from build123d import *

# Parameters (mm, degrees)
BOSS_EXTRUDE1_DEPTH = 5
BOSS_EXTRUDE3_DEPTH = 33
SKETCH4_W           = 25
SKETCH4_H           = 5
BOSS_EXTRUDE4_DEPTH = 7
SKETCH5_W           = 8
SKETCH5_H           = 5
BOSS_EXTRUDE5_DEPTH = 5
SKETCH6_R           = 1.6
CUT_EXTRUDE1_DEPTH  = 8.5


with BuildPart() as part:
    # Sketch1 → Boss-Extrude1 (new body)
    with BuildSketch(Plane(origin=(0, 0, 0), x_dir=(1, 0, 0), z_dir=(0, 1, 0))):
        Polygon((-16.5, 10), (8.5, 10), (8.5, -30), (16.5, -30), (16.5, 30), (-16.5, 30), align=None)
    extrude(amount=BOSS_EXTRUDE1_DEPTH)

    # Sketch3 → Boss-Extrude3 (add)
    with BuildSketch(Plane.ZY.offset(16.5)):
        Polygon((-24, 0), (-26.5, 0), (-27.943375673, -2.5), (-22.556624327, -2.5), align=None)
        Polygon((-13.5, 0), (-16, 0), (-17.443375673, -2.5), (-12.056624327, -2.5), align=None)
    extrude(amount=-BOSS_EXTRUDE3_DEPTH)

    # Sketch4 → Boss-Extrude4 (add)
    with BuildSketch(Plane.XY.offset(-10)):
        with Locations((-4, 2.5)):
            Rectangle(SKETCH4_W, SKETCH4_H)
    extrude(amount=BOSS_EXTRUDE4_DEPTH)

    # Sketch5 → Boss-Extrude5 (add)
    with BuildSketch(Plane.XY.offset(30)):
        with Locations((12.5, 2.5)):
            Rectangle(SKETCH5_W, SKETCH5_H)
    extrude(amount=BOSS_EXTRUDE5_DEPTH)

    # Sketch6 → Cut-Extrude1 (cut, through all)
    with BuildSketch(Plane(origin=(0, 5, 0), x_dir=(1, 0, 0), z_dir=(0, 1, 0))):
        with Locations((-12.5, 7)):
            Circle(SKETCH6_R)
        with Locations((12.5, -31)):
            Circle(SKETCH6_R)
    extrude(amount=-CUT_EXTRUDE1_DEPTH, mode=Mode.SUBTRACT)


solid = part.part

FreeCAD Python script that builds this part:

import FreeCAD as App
import Part
import Sketcher
Q = App.Units.Quantity

doc = App.newDocument("Part")
body = doc.addObject("PartDesign::Body", "Body")

sketch1 = doc.addObject("Sketcher::SketchObject", "Sketch")
body.addObject(sketch1)
sketch1.AttachmentSupport = (doc.XZ_Plane, [""])
sketch1.MapMode = "FlatFace"
sketch1.addGeometry(Part.LineSegment(App.Vector(-16, -10, 0), App.Vector(8, -10, 0)), False)
sketch1.addGeometry(Part.LineSegment(App.Vector(8, -10, 0), App.Vector(8, 30, 0)), False)
sketch1.addGeometry(Part.LineSegment(App.Vector(8, 30, 0), App.Vector(16, 30, 0)), False)
sketch1.addGeometry(Part.LineSegment(App.Vector(16, 30, 0), App.Vector(16, -30, 0)), False)
sketch1.addGeometry(Part.LineSegment(App.Vector(16, -30, 0), App.Vector(-16, -30, 0)), False)
sketch1.addGeometry(Part.LineSegment(App.Vector(-16, -30, 0), App.Vector(-16, -10, 0)), False)
sketch1.addConstraint(Sketcher.Constraint("Coincident", 0, 2, 1, 1))
sketch1.addConstraint(Sketcher.Constraint("Coincident", 1, 2, 2, 1))
sketch1.addConstraint(Sketcher.Constraint("Coincident", 2, 2, 3, 1))
sketch1.addConstraint(Sketcher.Constraint("Coincident", 3, 2, 4, 1))
sketch1.addConstraint(Sketcher.Constraint("Coincident", 4, 2, 5, 1))
sketch1.addConstraint(Sketcher.Constraint("Coincident", 5, 2, 0, 1))
sketch1.addConstraint(Sketcher.Constraint("Horizontal", 0))
sketch1.addConstraint(Sketcher.Constraint("Vertical", 1))
sketch1.addConstraint(Sketcher.Constraint("Horizontal", 2))
sketch1.addConstraint(Sketcher.Constraint("Vertical", 3))
sketch1.addConstraint(Sketcher.Constraint("Horizontal", 4))
sketch1.addConstraint(Sketcher.Constraint("Vertical", 5))
sketch1.addConstraint(Sketcher.Constraint("Symmetric", 2, 2, 4, 2, -1, 1))
sketch1.addConstraint(Sketcher.Constraint("DistanceX", 0, 1, 0, 2, Q("25 mm")))
sketch1.addConstraint(Sketcher.Constraint("DistanceX", 2, 1, 2, 2, Q("8 mm")))
sketch1.addConstraint(Sketcher.Constraint("DistanceY", 1, 1, 1, 2, Q("40 mm")))
sketch1.addConstraint(Sketcher.Constraint("DistanceY", 3, 2, 3, 1, Q("60 mm")))
pad1 = doc.addObject("PartDesign::Pad", "Pad")
body.addObject(pad1)
pad1.Profile = sketch1
pad1.Length = 5
pad1.Reversed = True

sketch2 = doc.addObject("Sketcher::SketchObject", "Sketch001")
body.addObject(sketch2)
sketch2.AttachmentSupport = (doc.YZ_Plane, [""])
sketch2.MapMode = "FlatFace"
sketch2.AttachmentOffset = App.Placement(App.Vector(0, 0, -16.5), App.Rotation())
sketch2.addGeometry(Part.LineSegment(App.Vector(0, -24, 0), App.Vector(0, -26.5, 0)), False)
sketch2.addGeometry(Part.LineSegment(App.Vector(0, -26.5, 0), App.Vector(-2.5, -27.9, 0)), False)
sketch2.addGeometry(Part.LineSegment(App.Vector(-2.5, -27.9, 0), App.Vector(-2.5, -22.6, 0)), False)
sketch2.addGeometry(Part.LineSegment(App.Vector(-2.5, -22.6, 0), App.Vector(0, -24, 0)), False)
sketch2.addGeometry(Part.LineSegment(App.Vector(0, -13.5, 0), App.Vector(0, -16, 0)), False)
sketch2.addGeometry(Part.LineSegment(App.Vector(0, -16, 0), App.Vector(-2.5, -17.4, 0)), False)
sketch2.addGeometry(Part.LineSegment(App.Vector(-2.5, -17.4, 0), App.Vector(-2.5, -12.1, 0)), False)
sketch2.addGeometry(Part.LineSegment(App.Vector(-2.5, -12.1, 0), App.Vector(0, -13.5, 0)), False)
sketch2.addConstraint(Sketcher.Constraint("Coincident", 0, 2, 1, 1))
sketch2.addConstraint(Sketcher.Constraint("Coincident", 1, 2, 2, 1))
sketch2.addConstraint(Sketcher.Constraint("Coincident", 2, 2, 3, 1))
sketch2.addConstraint(Sketcher.Constraint("Coincident", 3, 2, 0, 1))
sketch2.addConstraint(Sketcher.Constraint("Coincident", 4, 2, 5, 1))
sketch2.addConstraint(Sketcher.Constraint("Coincident", 5, 2, 6, 1))
sketch2.addConstraint(Sketcher.Constraint("Coincident", 6, 2, 7, 1))
sketch2.addConstraint(Sketcher.Constraint("Coincident", 7, 2, 4, 1))
sketch2.addConstraint(Sketcher.Constraint("Vertical", 0))
sketch2.addConstraint(Sketcher.Constraint("Vertical", 2))
sketch2.addConstraint(Sketcher.Constraint("Vertical", 4))
sketch2.addConstraint(Sketcher.Constraint("Vertical", 6))
sketch2.addConstraint(Sketcher.Constraint("PointOnObject", 0, 2, -2))
sketch2.addConstraint(Sketcher.Constraint("PointOnObject", 4, 2, -2))
sketch2.addConstraint(Sketcher.Constraint("Parallel", 1, 5))
sketch2.addConstraint(Sketcher.Constraint("Parallel", 3, 7))
sketch2.addConstraint(Sketcher.Constraint("Vertical", 2, 2, 5, 2))
sketch2.addConstraint(Sketcher.Constraint("Equal", 0, 4))
sketch2.addConstraint(Sketcher.Constraint("Equal", 1, 3))
sketch2.addConstraint(Sketcher.Constraint("Angle", 1, Q("-150 deg")))
sketch2.addConstraint(Sketcher.Constraint("DistanceY", 0, 2, 0, 1, Q("2.5 mm")))
sketch2.addConstraint(Sketcher.Constraint("DistanceY", 3, 2, -1, 1, Q("24 mm")))
sketch2.addConstraint(Sketcher.Constraint("DistanceY", 4, 2, -1, 1, Q("16 mm")))
sketch2.addConstraint(Sketcher.Constraint("DistanceX", 1, 2, -1, 1, Q("2.5 mm")))
pad2 = doc.addObject("PartDesign::Pad", "Pad001")
body.addObject(pad2)
pad2.Profile = sketch2
pad2.Length = 33

sketch3 = doc.addObject("Sketcher::SketchObject", "Sketch002")
body.addObject(sketch3)
sketch3.AttachmentSupport = (doc.XY_Plane, [""])
sketch3.MapMode = "FlatFace"
sketch3.AttachmentOffset = App.Placement(App.Vector(0, 0, -10), App.Rotation())
sketch3.addGeometry(Part.LineSegment(App.Vector(-16, 5, 0), App.Vector(-16, 0, 0)), False)
sketch3.addGeometry(Part.LineSegment(App.Vector(-16, 0, 0), App.Vector(8, 0, 0)), False)
sketch3.addGeometry(Part.LineSegment(App.Vector(8, 0, 0), App.Vector(8, 5, 0)), False)
sketch3.addGeometry(Part.LineSegment(App.Vector(8, 5, 0), App.Vector(-16, 5, 0)), False)
sketch3.addConstraint(Sketcher.Constraint("Coincident", 0, 2, 1, 1))
sketch3.addConstraint(Sketcher.Constraint("Coincident", 1, 2, 2, 1))
sketch3.addConstraint(Sketcher.Constraint("Coincident", 2, 2, 3, 1))
sketch3.addConstraint(Sketcher.Constraint("Coincident", 3, 2, 0, 1))
sketch3.addConstraint(Sketcher.Constraint("Vertical", 0))
sketch3.addConstraint(Sketcher.Constraint("Horizontal", 1))
sketch3.addConstraint(Sketcher.Constraint("Vertical", 2))
sketch3.addConstraint(Sketcher.Constraint("Horizontal", 3))
sketch3.addConstraint(Sketcher.Constraint("PointOnObject", 0, 2, -1))
sketch3.addConstraint(Sketcher.Constraint("DistanceX", 1, 1, 1, 2, Q("25 mm")))
sketch3.addConstraint(Sketcher.Constraint("DistanceY", 0, 2, 0, 1, Q("5 mm")))
sketch3.addConstraint(Sketcher.Constraint("DistanceX", 0, 2, -1, 1, Q("16.5 mm")))
pad3 = doc.addObject("PartDesign::Pad", "Pad002")
body.addObject(pad3)
pad3.Profile = sketch3
pad3.Length = 7

sketch4 = doc.addObject("Sketcher::SketchObject", "Sketch003")
body.addObject(sketch4)
sketch4.AttachmentSupport = (doc.XY_Plane, [""])
sketch4.MapMode = "FlatFace"
sketch4.AttachmentOffset = App.Placement(App.Vector(0, 0, 30), App.Rotation())
sketch4.addGeometry(Part.LineSegment(App.Vector(8, 5, 0), App.Vector(8, 0, 0)), False)
sketch4.addGeometry(Part.LineSegment(App.Vector(8, 0, 0), App.Vector(16, 0, 0)), False)
sketch4.addGeometry(Part.LineSegment(App.Vector(16, 0, 0), App.Vector(16, 5, 0)), False)
sketch4.addGeometry(Part.LineSegment(App.Vector(16, 5, 0), App.Vector(8, 5, 0)), False)
sketch4.addConstraint(Sketcher.Constraint("Coincident", 0, 2, 1, 1))
sketch4.addConstraint(Sketcher.Constraint("Coincident", 1, 2, 2, 1))
sketch4.addConstraint(Sketcher.Constraint("Coincident", 2, 2, 3, 1))
sketch4.addConstraint(Sketcher.Constraint("Coincident", 3, 2, 0, 1))
sketch4.addConstraint(Sketcher.Constraint("Vertical", 0))
sketch4.addConstraint(Sketcher.Constraint("Horizontal", 1))
sketch4.addConstraint(Sketcher.Constraint("Vertical", 2))
sketch4.addConstraint(Sketcher.Constraint("Horizontal", 3))
sketch4.addConstraint(Sketcher.Constraint("PointOnObject", 0, 2, -1))
sketch4.addConstraint(Sketcher.Constraint("DistanceX", 1, 1, 1, 2, Q("8 mm")))
sketch4.addConstraint(Sketcher.Constraint("DistanceY", 0, 2, 0, 1, Q("5 mm")))
sketch4.addConstraint(Sketcher.Constraint("DistanceX", -1, 1, 0, 2, Q("8.5 mm")))
pad4 = doc.addObject("PartDesign::Pad", "Pad003")
body.addObject(pad4)
pad4.Profile = sketch4
pad4.Length = 5

sketch5 = doc.addObject("Sketcher::SketchObject", "Sketch004")
body.addObject(sketch5)
sketch5.AttachmentSupport = (doc.XZ_Plane, [""])
sketch5.MapMode = "FlatFace"
sketch5.AttachmentOffset = App.Placement(App.Vector(0, 0, -5), App.Rotation())
sketch5.addGeometry(Part.Circle(App.Vector(-12.5, -7, 0), App.Vector(0, 0, 1), 1.6), False)
sketch5.addGeometry(Part.Circle(App.Vector(12.5, 31, 0), App.Vector(0, 0, 1), 1.6), False)
sketch5.addConstraint(Sketcher.Constraint("Equal", 0, 1))
sketch5.addConstraint(Sketcher.Constraint("Diameter", 0, Q("3.2 mm")))
sketch5.addConstraint(Sketcher.Constraint("DistanceY", 0, 3, -1, 1, Q("7 mm")))
sketch5.addConstraint(Sketcher.Constraint("DistanceY", -1, 1, 1, 3, Q("31 mm")))
sketch5.addConstraint(Sketcher.Constraint("DistanceX", 0, 3, 1, 3, Q("25 mm")))
sketch5.addConstraint(Sketcher.Constraint("DistanceX", 0, 3, -1, 1, Q("12.5 mm")))
pocket1 = doc.addObject("PartDesign::Pocket", "Pocket")
body.addObject(pocket1)
pocket1.Profile = sketch5
pocket1.Type = "ThroughAll"
pocket1.Reversed = True

doc.recompute()
